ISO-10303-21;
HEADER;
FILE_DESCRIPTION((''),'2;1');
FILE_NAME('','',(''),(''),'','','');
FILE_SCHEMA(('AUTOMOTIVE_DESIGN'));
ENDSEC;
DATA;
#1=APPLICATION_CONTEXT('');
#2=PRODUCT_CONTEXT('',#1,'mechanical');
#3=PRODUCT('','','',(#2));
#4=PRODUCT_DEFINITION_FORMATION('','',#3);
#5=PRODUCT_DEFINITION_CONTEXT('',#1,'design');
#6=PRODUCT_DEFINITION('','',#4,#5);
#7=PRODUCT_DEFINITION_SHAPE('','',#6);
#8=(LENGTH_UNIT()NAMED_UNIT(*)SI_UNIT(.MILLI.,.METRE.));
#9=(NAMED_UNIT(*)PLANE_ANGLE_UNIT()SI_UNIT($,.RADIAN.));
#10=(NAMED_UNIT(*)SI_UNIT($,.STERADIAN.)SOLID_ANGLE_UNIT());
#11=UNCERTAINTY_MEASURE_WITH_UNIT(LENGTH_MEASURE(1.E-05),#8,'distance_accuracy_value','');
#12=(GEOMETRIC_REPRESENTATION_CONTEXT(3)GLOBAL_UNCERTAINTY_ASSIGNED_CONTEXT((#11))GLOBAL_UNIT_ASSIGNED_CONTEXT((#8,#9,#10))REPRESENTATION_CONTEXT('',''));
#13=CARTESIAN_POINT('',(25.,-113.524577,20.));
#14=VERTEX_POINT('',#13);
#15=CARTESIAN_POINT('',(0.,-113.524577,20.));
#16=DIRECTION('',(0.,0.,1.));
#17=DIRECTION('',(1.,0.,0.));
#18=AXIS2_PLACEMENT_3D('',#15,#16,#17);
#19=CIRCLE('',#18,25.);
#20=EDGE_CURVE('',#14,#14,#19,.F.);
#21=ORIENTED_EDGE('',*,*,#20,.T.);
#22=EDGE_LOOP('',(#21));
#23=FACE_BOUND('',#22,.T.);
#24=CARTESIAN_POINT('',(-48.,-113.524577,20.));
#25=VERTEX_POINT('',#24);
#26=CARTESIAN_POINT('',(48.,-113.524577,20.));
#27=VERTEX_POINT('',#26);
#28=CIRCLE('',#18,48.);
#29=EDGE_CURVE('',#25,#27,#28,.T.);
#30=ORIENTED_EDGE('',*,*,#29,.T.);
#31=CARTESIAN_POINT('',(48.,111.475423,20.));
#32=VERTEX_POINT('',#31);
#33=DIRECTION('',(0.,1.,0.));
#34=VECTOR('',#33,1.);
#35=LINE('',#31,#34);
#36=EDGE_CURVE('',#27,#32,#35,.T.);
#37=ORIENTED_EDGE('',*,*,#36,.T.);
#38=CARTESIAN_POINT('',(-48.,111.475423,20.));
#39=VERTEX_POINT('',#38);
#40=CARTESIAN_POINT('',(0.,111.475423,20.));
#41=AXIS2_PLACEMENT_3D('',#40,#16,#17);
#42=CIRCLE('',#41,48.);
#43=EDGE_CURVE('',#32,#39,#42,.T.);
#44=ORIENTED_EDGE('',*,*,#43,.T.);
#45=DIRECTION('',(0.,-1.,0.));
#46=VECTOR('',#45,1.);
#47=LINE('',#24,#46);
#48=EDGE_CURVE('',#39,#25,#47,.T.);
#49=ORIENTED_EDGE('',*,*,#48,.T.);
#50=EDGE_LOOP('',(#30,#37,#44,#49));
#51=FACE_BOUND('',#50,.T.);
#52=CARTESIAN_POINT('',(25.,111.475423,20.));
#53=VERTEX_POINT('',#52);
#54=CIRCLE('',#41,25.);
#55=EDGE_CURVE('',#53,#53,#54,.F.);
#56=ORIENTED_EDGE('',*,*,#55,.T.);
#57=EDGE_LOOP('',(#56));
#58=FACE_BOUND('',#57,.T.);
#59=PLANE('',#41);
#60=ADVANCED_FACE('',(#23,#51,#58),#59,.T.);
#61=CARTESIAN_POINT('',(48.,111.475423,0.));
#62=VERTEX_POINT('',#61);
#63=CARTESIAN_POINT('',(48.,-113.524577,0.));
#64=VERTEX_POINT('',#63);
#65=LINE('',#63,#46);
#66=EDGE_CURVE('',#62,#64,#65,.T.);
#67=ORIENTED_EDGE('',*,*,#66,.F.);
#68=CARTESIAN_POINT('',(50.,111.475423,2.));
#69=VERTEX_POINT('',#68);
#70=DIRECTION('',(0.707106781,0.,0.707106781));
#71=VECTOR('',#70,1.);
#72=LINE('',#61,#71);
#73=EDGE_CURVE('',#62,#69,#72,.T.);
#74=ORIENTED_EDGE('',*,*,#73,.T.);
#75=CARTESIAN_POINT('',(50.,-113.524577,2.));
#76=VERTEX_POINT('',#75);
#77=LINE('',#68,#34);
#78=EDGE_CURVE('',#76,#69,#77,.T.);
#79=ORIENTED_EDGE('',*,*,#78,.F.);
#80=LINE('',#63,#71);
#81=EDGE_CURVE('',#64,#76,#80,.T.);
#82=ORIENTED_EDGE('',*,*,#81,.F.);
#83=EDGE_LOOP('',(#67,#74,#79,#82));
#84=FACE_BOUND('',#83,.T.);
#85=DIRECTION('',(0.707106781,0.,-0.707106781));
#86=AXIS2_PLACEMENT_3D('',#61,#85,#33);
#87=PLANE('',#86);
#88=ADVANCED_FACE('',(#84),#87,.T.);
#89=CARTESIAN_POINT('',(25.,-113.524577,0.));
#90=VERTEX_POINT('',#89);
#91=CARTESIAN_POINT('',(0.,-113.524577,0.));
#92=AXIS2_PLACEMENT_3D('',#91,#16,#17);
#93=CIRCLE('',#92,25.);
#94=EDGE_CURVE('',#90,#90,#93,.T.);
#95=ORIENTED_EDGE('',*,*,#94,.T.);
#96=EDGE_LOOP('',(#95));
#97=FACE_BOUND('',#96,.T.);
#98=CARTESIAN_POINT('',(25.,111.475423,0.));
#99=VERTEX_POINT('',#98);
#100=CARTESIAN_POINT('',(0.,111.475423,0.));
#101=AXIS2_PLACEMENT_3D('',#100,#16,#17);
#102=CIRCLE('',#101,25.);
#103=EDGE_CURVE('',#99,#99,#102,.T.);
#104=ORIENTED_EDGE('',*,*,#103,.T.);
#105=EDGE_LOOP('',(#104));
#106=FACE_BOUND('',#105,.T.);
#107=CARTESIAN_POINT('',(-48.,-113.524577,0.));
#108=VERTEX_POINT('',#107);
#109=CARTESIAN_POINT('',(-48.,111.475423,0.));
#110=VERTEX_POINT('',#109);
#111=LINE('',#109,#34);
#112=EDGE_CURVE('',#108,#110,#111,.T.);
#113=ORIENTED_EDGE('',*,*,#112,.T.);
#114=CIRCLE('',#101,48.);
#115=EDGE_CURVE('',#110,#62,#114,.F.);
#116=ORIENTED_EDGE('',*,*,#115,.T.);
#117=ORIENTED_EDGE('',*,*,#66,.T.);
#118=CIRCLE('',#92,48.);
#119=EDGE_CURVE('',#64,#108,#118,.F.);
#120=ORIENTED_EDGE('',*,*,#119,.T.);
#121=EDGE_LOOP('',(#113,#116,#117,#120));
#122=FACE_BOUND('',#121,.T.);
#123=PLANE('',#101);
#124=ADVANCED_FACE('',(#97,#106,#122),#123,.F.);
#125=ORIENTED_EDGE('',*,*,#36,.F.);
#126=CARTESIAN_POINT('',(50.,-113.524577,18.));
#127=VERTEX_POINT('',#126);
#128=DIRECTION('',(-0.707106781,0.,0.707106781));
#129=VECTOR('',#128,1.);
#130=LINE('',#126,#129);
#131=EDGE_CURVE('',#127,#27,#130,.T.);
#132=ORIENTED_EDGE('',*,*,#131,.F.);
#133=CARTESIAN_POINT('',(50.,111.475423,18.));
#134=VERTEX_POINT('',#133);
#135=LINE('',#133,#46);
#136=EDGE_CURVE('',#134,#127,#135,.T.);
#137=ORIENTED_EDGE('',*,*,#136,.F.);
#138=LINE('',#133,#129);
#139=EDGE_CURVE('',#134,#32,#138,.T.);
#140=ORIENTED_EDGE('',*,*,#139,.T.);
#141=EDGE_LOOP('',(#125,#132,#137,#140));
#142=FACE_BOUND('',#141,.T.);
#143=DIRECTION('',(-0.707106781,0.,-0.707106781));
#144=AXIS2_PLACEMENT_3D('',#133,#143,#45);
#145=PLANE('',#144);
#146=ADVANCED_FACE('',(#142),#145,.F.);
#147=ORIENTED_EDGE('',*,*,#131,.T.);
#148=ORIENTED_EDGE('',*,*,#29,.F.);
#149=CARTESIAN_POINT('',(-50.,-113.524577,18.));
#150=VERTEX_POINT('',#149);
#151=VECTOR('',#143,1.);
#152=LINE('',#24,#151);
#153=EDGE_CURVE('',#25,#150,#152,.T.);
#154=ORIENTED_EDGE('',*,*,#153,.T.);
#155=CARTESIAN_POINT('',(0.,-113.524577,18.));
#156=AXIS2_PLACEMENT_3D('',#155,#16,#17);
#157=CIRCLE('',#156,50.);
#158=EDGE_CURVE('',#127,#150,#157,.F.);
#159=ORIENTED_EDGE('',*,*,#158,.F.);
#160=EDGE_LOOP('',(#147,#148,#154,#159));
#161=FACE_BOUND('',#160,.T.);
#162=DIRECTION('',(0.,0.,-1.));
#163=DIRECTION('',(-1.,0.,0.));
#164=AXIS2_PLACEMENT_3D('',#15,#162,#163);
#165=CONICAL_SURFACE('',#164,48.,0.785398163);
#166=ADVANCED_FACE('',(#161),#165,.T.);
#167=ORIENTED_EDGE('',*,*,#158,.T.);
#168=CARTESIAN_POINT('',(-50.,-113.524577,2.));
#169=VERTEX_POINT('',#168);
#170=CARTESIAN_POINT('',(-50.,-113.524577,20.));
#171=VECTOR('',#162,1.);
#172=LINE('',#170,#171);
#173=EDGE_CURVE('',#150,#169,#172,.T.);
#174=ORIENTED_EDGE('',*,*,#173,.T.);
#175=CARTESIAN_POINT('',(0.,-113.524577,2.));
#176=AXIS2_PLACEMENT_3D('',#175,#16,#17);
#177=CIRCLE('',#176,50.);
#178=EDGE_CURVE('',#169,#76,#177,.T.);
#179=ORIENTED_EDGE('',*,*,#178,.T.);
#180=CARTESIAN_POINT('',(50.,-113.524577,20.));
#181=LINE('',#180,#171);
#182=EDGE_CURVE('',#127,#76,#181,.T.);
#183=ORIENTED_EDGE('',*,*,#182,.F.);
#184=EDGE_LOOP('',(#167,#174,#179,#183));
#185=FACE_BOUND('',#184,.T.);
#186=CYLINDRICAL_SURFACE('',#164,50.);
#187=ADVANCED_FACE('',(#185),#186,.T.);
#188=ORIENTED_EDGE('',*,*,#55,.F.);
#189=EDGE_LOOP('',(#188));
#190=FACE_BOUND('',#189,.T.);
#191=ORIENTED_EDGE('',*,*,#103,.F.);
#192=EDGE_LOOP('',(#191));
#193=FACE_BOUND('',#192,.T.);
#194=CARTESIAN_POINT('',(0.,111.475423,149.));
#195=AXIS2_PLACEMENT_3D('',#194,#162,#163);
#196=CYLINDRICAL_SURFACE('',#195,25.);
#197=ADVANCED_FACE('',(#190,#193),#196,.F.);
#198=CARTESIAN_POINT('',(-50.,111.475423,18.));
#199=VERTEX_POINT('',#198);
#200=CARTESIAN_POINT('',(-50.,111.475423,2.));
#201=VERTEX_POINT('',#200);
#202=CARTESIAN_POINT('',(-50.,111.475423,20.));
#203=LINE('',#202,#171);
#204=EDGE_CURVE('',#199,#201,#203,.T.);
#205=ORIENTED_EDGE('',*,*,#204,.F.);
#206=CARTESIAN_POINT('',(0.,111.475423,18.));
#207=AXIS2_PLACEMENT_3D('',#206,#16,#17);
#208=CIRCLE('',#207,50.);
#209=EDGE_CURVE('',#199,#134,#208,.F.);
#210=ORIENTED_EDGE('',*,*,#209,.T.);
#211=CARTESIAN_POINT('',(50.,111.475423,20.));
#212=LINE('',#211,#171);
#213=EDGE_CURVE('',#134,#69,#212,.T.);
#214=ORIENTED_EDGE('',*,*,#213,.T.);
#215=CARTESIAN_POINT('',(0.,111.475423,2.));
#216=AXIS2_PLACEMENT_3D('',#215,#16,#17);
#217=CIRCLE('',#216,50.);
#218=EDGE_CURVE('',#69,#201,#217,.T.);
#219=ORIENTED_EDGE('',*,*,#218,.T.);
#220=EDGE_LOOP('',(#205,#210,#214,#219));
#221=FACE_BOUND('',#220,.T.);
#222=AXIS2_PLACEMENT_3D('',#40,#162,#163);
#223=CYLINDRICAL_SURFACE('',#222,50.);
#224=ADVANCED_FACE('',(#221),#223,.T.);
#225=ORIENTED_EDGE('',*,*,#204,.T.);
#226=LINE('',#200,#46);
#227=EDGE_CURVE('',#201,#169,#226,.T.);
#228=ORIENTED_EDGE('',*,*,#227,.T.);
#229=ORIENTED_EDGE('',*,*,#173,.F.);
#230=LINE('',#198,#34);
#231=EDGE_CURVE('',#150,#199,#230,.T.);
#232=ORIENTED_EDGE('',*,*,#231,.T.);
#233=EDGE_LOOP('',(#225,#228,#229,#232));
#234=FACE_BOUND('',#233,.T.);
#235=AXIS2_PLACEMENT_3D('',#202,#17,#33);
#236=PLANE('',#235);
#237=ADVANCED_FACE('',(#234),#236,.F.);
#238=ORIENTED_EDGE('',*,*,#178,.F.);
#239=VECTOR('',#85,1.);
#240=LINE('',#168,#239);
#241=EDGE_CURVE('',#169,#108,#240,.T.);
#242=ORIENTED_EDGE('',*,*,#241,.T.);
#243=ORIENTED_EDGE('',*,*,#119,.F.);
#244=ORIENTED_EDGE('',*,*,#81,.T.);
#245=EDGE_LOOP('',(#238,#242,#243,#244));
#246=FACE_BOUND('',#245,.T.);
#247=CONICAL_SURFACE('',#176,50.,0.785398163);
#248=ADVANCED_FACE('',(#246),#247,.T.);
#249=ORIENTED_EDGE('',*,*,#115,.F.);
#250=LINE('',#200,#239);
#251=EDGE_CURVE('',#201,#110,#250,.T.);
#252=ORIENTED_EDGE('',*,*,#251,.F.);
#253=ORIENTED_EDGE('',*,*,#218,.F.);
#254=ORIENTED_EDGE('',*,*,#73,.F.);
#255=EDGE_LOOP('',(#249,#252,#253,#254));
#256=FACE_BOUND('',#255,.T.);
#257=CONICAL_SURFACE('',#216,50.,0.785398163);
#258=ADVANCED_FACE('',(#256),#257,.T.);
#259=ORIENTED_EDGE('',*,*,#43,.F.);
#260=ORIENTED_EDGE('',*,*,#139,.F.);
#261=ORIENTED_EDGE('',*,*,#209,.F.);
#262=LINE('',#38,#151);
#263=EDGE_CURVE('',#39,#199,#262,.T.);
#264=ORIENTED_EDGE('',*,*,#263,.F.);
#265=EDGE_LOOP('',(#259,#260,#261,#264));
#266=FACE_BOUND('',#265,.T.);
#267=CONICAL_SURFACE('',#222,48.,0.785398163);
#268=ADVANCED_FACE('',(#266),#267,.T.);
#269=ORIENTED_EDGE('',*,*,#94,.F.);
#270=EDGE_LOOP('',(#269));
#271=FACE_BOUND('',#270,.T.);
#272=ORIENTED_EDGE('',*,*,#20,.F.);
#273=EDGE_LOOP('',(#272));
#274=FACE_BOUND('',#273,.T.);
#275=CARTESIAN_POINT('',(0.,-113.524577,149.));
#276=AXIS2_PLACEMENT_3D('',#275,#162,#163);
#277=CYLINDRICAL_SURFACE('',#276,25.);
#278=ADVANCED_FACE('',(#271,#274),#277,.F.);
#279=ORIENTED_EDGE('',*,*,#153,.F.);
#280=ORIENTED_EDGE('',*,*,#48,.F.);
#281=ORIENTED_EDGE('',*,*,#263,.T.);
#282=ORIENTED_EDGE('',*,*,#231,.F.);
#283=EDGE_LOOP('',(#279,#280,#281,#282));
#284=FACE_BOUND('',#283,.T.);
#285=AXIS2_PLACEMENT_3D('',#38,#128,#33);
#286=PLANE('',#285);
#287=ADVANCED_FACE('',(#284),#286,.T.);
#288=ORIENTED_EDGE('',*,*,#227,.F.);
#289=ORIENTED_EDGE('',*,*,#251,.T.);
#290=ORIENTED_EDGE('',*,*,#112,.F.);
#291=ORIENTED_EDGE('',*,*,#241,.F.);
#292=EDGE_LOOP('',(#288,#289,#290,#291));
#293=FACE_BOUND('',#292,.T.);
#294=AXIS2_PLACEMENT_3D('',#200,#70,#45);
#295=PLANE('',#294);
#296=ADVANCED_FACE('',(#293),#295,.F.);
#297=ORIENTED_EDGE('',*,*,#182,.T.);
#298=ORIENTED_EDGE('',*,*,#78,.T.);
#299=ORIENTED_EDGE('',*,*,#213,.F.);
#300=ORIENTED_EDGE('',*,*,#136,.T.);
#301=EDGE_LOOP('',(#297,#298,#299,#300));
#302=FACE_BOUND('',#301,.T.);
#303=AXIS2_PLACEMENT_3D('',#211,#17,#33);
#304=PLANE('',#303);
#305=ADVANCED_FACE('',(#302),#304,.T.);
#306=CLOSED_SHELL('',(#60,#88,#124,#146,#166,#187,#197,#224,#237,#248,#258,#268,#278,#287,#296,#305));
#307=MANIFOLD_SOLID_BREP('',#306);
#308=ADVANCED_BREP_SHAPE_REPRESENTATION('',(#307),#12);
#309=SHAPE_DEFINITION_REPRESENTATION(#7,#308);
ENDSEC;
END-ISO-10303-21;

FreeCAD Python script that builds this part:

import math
import FreeCAD as App
import Part
import Sketcher
from FreeCAD import Vector
Q = App.Units.Quantity


def edges_at(feature, points):
    """Names of the edges that pass closest to the given points."""
    edges = feature.Shape.Edges
    near = lambda p: min(range(len(edges)), key=lambda i: edges[i].distToShape(Part.Vertex(*p))[0])
    return sorted({f"Edge{near(p) + 1}" for p in points})

doc = App.newDocument("Part")
body = doc.addObject("PartDesign::Body", "Body")

sketch1 = body.newObject("Sketcher::SketchObject", "Sketch")
sketch1.AttachmentSupport = (doc.getObject("XY_Plane"), [""])
sketch1.MapMode = "FlatFace"
sketch1.addGeometry(Part.LineSegment(Vector(-50, 111, 0), Vector(-50, -114, 0)), False)
sketch1.addGeometry(Part.ArcOfCircle(Part.Circle(Vector(0, -114, 0), Vector(0, 0, 1), 50), math.radians(180), math.radians(360)), False)
sketch1.addGeometry(Part.LineSegment(Vector(50, -114, 0), Vector(50, 111, 0)), False)
sketch1.addGeometry(Part.ArcOfCircle(Part.Circle(Vector(0, 111, 0), Vector(0, 0, 1), 50), math.radians(0), math.radians(180)), False)
sketch1.addConstraint(Sketcher.Constraint("Tangent", 0, 2, 1, 1))
sketch1.addConstraint(Sketcher.Constraint("Tangent", 1, 2, 2, 1))
sketch1.addConstraint(Sketcher.Constraint("Tangent", 2, 2, 3, 1))
sketch1.addConstraint(Sketcher.Constraint("Tangent", 3, 2, 0, 1))
sketch1.addConstraint(Sketcher.Constraint("Vertical", 0))
sketch1.addConstraint(Sketcher.Constraint("Vertical", 2))
sketch1.addConstraint(Sketcher.Constraint("PointOnObject", 1, 3, -2))
sketch1.addConstraint(Sketcher.Constraint("Radius", 1, Q("50 mm")))
sketch1.addConstraint(Sketcher.Constraint("DistanceY", 0, 2, 0, 1, Q("225 mm")))
sketch1.addConstraint(Sketcher.Constraint("DistanceY", 1, 3, -1, 1, Q("113.524577 mm")))
pad1 = body.newObject("PartDesign::Pad", "Pad")
pad1.Profile = sketch1
pad1.Length = 20

sketch2 = body.newObject("Sketcher::SketchObject", "Sketch001")
sketch2.AttachmentSupport = (doc.getObject("XY_Plane"), [""])
sketch2.MapMode = "FlatFace"
sketch2.addGeometry(Part.Circle(Vector(0, 111, 0), Vector(0, 0, 1), 25), False)
sketch2.addGeometry(Part.Circle(Vector(0, -114, 0), Vector(0, 0, 1), 25), False)
sketch2.addConstraint(Sketcher.Constraint("Equal", 0, 1))
sketch2.addConstraint(Sketcher.Constraint("PointOnObject", 0, 3, -2))
sketch2.addConstraint(Sketcher.Constraint("PointOnObject", 1, 3, -2))
sketch2.addConstraint(Sketcher.Constraint("Diameter", 0, Q("50 mm")))
sketch2.addConstraint(Sketcher.Constraint("DistanceY", 1, 3, 0, 3, Q("225 mm")))
sketch2.addConstraint(Sketcher.Constraint("DistanceY", -1, 1, 0, 3, Q("111.475423 mm")))
pocket1 = body.newObject("PartDesign::Pocket", "Pocket")
pocket1.Profile = sketch2
pocket1.Length = 149
pocket1.Reversed = True
doc.recompute()

chamfer = body.newObject("PartDesign::Chamfer", "Chamfer")
chamfer.Base = (pocket1, edges_at(pocket1, [
    (0, -163.525, 20),
    (50, -1.025, 20),
    (0, 161.475, 20),
    (50, -1.025, 0),
    (0, -163.525, 0),
    (-50, -1.025, 0),
    (0, 161.475, 0),
    (-50, -1.025, 20),
]))
chamfer.Size = 2

doc.recompute()
